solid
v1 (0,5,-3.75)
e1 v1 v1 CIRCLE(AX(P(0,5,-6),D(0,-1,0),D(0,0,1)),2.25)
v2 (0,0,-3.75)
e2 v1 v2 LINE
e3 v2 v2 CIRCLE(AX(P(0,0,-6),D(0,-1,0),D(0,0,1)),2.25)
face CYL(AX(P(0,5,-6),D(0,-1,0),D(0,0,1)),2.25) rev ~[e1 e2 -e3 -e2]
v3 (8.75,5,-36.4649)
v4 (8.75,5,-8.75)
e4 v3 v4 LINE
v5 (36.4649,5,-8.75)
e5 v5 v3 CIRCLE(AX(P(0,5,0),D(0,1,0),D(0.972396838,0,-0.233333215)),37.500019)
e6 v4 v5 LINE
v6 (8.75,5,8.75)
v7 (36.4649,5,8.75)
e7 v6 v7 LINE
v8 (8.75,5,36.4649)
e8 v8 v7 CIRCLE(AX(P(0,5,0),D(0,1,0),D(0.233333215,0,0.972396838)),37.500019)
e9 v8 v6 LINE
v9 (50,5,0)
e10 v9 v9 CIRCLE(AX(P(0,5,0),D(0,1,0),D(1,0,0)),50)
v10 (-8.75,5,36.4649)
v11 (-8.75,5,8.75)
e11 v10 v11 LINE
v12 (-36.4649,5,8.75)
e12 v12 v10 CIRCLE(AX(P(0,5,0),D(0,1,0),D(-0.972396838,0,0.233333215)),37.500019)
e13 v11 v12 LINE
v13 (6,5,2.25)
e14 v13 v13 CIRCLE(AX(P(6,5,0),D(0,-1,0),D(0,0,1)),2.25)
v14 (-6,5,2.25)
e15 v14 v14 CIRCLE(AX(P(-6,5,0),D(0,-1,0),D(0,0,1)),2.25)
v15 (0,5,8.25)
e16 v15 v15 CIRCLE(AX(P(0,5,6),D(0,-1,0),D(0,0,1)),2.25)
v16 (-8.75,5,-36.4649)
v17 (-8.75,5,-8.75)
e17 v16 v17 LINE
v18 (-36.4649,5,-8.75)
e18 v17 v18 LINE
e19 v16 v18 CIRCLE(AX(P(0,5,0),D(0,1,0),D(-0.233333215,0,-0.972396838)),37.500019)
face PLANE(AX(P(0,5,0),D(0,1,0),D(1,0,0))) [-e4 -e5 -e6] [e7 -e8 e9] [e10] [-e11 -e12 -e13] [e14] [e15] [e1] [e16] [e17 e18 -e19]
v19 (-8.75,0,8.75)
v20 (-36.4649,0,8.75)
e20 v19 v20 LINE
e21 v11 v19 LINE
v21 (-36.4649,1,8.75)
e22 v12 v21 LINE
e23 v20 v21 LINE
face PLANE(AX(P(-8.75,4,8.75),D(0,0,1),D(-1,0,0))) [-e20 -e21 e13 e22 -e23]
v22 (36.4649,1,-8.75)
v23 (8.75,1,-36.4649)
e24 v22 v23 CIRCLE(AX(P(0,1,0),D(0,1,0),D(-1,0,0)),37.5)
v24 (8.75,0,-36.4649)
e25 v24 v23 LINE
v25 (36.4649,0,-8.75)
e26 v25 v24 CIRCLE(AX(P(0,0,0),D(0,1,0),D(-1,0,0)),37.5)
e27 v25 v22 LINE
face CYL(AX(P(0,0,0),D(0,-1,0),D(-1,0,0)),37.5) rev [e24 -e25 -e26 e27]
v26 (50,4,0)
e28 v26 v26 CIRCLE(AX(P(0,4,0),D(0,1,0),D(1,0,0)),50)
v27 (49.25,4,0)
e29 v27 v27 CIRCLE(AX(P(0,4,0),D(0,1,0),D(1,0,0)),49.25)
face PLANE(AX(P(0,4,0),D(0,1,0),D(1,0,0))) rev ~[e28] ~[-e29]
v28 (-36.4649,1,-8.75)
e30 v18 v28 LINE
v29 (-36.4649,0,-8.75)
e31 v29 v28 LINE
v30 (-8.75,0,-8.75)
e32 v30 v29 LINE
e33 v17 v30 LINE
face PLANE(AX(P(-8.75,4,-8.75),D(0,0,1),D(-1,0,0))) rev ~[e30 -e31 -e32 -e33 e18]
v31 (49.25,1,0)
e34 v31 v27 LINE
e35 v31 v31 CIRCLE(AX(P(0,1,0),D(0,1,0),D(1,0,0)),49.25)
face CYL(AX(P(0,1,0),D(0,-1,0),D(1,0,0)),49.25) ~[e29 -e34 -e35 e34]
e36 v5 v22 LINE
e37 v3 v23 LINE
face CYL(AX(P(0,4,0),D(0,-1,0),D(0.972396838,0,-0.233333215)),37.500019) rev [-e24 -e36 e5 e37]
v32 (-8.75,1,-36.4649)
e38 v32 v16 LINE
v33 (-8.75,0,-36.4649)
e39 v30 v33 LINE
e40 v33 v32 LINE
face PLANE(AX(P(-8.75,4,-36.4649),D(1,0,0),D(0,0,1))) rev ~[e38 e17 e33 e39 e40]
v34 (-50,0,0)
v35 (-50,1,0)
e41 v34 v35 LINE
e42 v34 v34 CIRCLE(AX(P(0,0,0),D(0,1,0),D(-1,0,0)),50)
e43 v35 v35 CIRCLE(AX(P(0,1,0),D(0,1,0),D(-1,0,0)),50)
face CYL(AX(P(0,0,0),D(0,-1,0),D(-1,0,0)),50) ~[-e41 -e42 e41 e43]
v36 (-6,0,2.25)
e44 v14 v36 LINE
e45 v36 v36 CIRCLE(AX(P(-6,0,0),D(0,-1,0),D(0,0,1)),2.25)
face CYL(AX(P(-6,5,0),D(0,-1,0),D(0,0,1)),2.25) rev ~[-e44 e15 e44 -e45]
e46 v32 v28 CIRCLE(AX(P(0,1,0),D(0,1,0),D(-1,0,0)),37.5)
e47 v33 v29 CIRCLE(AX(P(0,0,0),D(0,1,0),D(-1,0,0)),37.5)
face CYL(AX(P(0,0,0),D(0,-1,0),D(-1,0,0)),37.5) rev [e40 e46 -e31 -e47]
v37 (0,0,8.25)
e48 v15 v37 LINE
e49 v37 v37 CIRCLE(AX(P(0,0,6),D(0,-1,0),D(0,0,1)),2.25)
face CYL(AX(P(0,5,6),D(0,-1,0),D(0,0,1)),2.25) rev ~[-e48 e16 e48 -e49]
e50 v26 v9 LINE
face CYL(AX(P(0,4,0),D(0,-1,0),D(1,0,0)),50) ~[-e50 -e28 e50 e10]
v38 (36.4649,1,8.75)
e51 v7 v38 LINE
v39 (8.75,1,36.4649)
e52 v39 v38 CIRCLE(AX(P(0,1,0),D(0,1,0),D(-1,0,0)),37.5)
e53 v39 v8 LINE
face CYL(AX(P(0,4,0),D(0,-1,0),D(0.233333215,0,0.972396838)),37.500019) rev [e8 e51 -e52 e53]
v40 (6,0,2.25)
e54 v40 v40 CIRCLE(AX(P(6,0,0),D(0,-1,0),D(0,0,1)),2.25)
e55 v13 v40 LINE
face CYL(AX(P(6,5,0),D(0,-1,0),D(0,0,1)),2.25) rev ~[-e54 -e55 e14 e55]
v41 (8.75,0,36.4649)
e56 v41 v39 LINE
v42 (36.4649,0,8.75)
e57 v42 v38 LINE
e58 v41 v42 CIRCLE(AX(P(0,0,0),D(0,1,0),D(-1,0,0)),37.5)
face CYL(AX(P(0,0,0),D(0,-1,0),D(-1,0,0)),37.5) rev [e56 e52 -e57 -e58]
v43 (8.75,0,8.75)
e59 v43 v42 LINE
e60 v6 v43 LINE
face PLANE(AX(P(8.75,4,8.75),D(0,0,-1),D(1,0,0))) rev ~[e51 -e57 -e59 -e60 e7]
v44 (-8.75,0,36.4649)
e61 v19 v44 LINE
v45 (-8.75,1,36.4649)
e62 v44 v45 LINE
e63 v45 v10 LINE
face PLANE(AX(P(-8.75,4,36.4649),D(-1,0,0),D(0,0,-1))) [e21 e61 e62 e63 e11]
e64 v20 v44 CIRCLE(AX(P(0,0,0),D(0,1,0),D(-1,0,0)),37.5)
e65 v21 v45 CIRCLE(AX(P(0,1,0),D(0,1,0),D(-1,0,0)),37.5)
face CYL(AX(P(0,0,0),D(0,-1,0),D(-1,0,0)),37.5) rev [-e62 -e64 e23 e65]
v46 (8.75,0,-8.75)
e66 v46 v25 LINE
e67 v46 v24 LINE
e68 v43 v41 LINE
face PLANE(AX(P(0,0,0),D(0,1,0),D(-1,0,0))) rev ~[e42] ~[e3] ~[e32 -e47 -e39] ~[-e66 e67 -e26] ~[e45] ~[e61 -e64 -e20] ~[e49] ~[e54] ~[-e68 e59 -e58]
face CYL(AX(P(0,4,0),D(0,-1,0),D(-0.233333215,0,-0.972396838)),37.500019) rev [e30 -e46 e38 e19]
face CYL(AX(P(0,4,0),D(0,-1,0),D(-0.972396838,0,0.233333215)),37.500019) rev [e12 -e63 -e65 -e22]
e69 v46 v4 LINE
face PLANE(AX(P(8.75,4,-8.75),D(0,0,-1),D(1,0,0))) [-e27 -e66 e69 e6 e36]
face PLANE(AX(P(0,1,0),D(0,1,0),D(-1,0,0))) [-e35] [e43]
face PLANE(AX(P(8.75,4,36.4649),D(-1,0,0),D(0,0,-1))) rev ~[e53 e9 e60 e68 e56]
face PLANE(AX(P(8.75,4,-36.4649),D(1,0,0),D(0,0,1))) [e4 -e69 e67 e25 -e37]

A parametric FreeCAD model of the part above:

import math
import FreeCAD as App
import Part
import Sketcher

V = App.Vector
Q = App.Units.Quantity

doc = App.newDocument("Part")
body = doc.addObject("PartDesign::Body", "Body")

# Sketch on XZ plane
sketch1 = body.newObject("Sketcher::SketchObject", "Sketch")
sketch1.AttachmentSupport = (doc.getObject("XZ_Plane"), [""])
sketch1.MapMode = "FlatFace"
sketch1.addGeometry(Part.Circle(V(0, 0, 0), V(0, 0, 1), 50), False)
sketch1.addGeometry(Part.ArcOfCircle(Part.Circle(V(0, 0, 0), V(0, 0, 1), 38), math.radians(103), math.radians(167)), False)
sketch1.addGeometry(Part.LineSegment(V(-36, 9, 0), V(-9, 9, 0)), False)
sketch1.addGeometry(Part.LineSegment(V(-9, 9, 0), V(-9, 36, 0)), False)
sketch1.addGeometry(Part.ArcOfCircle(Part.Circle(V(0, 0, 0), V(0, 0, 1), 38), math.radians(13), math.radians(77)), False)
sketch1.addGeometry(Part.LineSegment(V(9, 36, 0), V(9, 9, 0)), False)
sketch1.addGeometry(Part.LineSegment(V(9, 9, 0), V(36, 9, 0)), False)
sketch1.addGeometry(Part.ArcOfCircle(Part.Circle(V(0, 0, 0), V(0, 0, 1), 38), math.radians(-77), math.radians(-13)), False)
sketch1.addGeometry(Part.LineSegment(V(36, -9, 0), V(9, -9, 0)), False)
sketch1.addGeometry(Part.LineSegment(V(9, -9, 0), V(9, -36, 0)), False)
sketch1.addGeometry(Part.ArcOfCircle(Part.Circle(V(0, 0, 0), V(0, 0, 1), 38), math.radians(-167), math.radians(-103)), False)
sketch1.addGeometry(Part.LineSegment(V(-9, -36, 0), V(-9, -9, 0)), False)
sketch1.addGeometry(Part.LineSegment(V(-9, -9, 0), V(-36, -9, 0)), False)
sketch1.addConstraint(Sketcher.Constraint("Coincident", 1, 2, 2, 1))
sketch1.addConstraint(Sketcher.Constraint("Coincident", 2, 2, 3, 1))
sketch1.addConstraint(Sketcher.Constraint("Coincident", 3, 2, 1, 1))
sketch1.addConstraint(Sketcher.Constraint("Coincident", 4, 2, 5, 1))
sketch1.addConstraint(Sketcher.Constraint("Coincident", 5, 2, 6, 1))
sketch1.addConstraint(Sketcher.Constraint("Coincident", 6, 2, 4, 1))
sketch1.addConstraint(Sketcher.Constraint("Coincident", 7, 2, 8, 1))
sketch1.addConstraint(Sketcher.Constraint("Coincident", 8, 2, 9, 1))
sketch1.addConstraint(Sketcher.Constraint("Coincident", 9, 2, 7, 1))
sketch1.addConstraint(Sketcher.Constraint("Coincident", 10, 2, 11, 1))
sketch1.addConstraint(Sketcher.Constraint("Coincident", 11, 2, 12, 1))
sketch1.addConstraint(Sketcher.Constraint("Coincident", 12, 2, 10, 1))
sketch1.addConstraint(Sketcher.Constraint("Horizontal", 2))
sketch1.addConstraint(Sketcher.Constraint("Vertical", 3))
sketch1.addConstraint(Sketcher.Constraint("Vertical", 5))
sketch1.addConstraint(Sketcher.Constraint("Horizontal", 6))
sketch1.addConstraint(Sketcher.Constraint("Horizontal", 8))
sketch1.addConstraint(Sketcher.Constraint("Vertical", 9))
sketch1.addConstraint(Sketcher.Constraint("Vertical", 11))
sketch1.addConstraint(Sketcher.Constraint("Horizontal", 12))
sketch1.addConstraint(Sketcher.Constraint("Coincident", 0, 3, -1, 1))
sketch1.addConstraint(Sketcher.Constraint("Coincident", 1, 3, -1, 1))
sketch1.addConstraint(Sketcher.Constraint("Coincident", 4, 3, -1, 1))
sketch1.addConstraint(Sketcher.Constraint("Coincident", 7, 3, -1, 1))
sketch1.addConstraint(Sketcher.Constraint("Coincident", 10, 3, -1, 1))
sketch1.addConstraint(Sketcher.Constraint("Equal", 1, 4))
sketch1.addConstraint(Sketcher.Constraint("Equal", 4, 7))
sketch1.addConstraint(Sketcher.Constraint("Equal", 7, 10))
sketch1.addConstraint(Sketcher.Constraint("Symmetric", 2, 2, 8, 2, -1, 1))
sketch1.addConstraint(Sketcher.Constraint("Symmetric", 5, 2, 11, 2, -1, 1))
sketch1.addConstraint(Sketcher.Constraint("Symmetric", 2, 2, 5, 2, -2))
sketch1.addConstraint(Sketcher.Constraint("Equal", 12, 3))
sketch1.addConstraint(Sketcher.Constraint("Diameter", 0, Q("100 mm")))
sketch1.addConstraint(Sketcher.Constraint("Radius", 1, Q("37.5 mm")))
sketch1.addConstraint(Sketcher.Constraint("DistanceX", 3, 2, 4, 2, Q("17.5 mm")))
pad1 = body.newObject("PartDesign::Pad", "Pad")
pad1.Profile = sketch1
pad1.Length = 1
pad1.Reversed = True

# Sketch on XZ plane
sketch2 = body.newObject("Sketcher::SketchObject", "Sketch001")
sketch2.AttachmentSupport = (doc.getObject("XZ_Plane"), [""])
sketch2.MapMode = "FlatFace"
sketch2.AttachmentOffset = App.Placement(V(0, 0, -1), App.Rotation())
sketch2.addGeometry(Part.Circle(V(0, 0, 0), V(0, 0, 1), 49), False)
sketch2.addGeometry(Part.ArcOfCircle(Part.Circle(V(0, 0, 0), V(0, 0, 1), 38), math.radians(103), math.radians(167)), False)
sketch2.addGeometry(Part.LineSegment(V(-36, 9, 0), V(-9, 9, 0)), False)
sketch2.addGeometry(Part.LineSegment(V(-9, 9, 0), V(-9, 36, 0)), False)
sketch2.addGeometry(Part.LineSegment(V(9, 9, 0), V(36, 9, 0)), False)
sketch2.addGeometry(Part.ArcOfCircle(Part.Circle(V(0, 0, 0), V(0, 0, 1), 38), math.radians(13), math.radians(77)), False)
sketch2.addGeometry(Part.LineSegment(V(9, 36, 0), V(9, 9, 0)), False)
sketch2.addGeometry(Part.LineSegment(V(-9, -9, 0), V(-36, -9, 0)), False)
sketch2.addGeometry(Part.ArcOfCircle(Part.Circle(V(0, 0, 0), V(0, 0, 1), 38), math.radians(-167), math.radians(-103)), False)
sketch2.addGeometry(Part.LineSegment(V(-9, -36, 0), V(-9, -9, 0)), False)
sketch2.addGeometry(Part.ArcOfCircle(Part.Circle(V(0, 0, 0), V(0, 0, 1), 38), math.radians(-77), math.radians(-13)), False)
sketch2.addGeometry(Part.LineSegment(V(36, -9, 0), V(9, -9, 0)), False)
sketch2.addGeometry(Part.LineSegment(V(9, -9, 0), V(9, -36, 0)), False)
sketch2.addConstraint(Sketcher.Constraint("Coincident", 1, 2, 2, 1))
sketch2.addConstraint(Sketcher.Constraint("Coincident", 2, 2, 3, 1))
sketch2.addConstraint(Sketcher.Constraint("Coincident", 3, 2, 1, 1))
sketch2.addConstraint(Sketcher.Constraint("Coincident", 4, 2, 5, 1))
sketch2.addConstraint(Sketcher.Constraint("Coincident", 5, 2, 6, 1))
sketch2.addConstraint(Sketcher.Constraint("Coincident", 6, 2, 4, 1))
sketch2.addConstraint(Sketcher.Constraint("Coincident", 7, 2, 8, 1))
sketch2.addConstraint(Sketcher.Constraint("Coincident", 8, 2, 9, 1))
sketch2.addConstraint(Sketcher.Constraint("Coincident", 9, 2, 7, 1))
sketch2.addConstraint(Sketcher.Constraint("Coincident", 10, 2, 11, 1))
sketch2.addConstraint(Sketcher.Constraint("Coincident", 11, 2, 12, 1))
sketch2.addConstraint(Sketcher.Constraint("Coincident", 12, 2, 10, 1))
sketch2.addConstraint(Sketcher.Constraint("Horizontal", 2))
sketch2.addConstraint(Sketcher.Constraint("Vertical", 3))
sketch2.addConstraint(Sketcher.Constraint("Horizontal", 4))
sketch2.addConstraint(Sketcher.Constraint("Vertical", 6))
sketch2.addConstraint(Sketcher.Constraint("Horizontal", 7))
sketch2.addConstraint(Sketcher.Constraint("Vertical", 9))
sketch2.addConstraint(Sketcher.Constraint("Horizontal", 11))
sketch2.addConstraint(Sketcher.Constraint("Vertical", 12))
sketch2.addConstraint(Sketcher.Constraint("Coincident", 0, 3, -1, 1))
sketch2.addConstraint(Sketcher.Constraint("Coincident", 1, 3, -1, 1))
sketch2.addConstraint(Sketcher.Constraint("Coincident", 5, 3, -1, 1))
sketch2.addConstraint(Sketcher.Constraint("Coincident", 8, 3, -1, 1))
sketch2.addConstraint(Sketcher.Constraint("Coincident", 10, 3, -1, 1))
sketch2.addConstraint(Sketcher.Constraint("Equal", 1, 5))
sketch2.addConstraint(Sketcher.Constraint("Equal", 5, 8))
sketch2.addConstraint(Sketcher.Constraint("Equal", 8, 10))
sketch2.addConstraint(Sketcher.Constraint("Symmetric", 6, 2, 9, 2, -1, 1))
sketch2.addConstraint(Sketcher.Constraint("Symmetric", 2, 2, 11, 2, -1, 1))
sketch2.addConstraint(Sketcher.Constraint("Symmetric", 2, 2, 6, 2, -2))
sketch2.addConstraint(Sketcher.Constraint("Equal", 11, 3))
sketch2.addConstraint(Sketcher.Constraint("Diameter", 0, Q("98.5 mm")))
sketch2.addConstraint(Sketcher.Constraint("Radius", 1, Q("37.5 mm")))
sketch2.addConstraint(Sketcher.Constraint("DistanceX", 3, 2, 5, 2, Q("17.5 mm")))
pad2 = body.newObject("PartDesign::Pad", "Pad001")
pad2.Profile = sketch2
pad2.Length = 3
pad2.Reversed = True

# Sketch on XZ plane
sketch3 = body.newObject("Sketcher::SketchObject", "Sketch002")
sketch3.AttachmentSupport = (doc.getObject("XZ_Plane"), [""])
sketch3.MapMode = "FlatFace"
sketch3.AttachmentOffset = App.Placement(V(0, 0, -4), App.Rotation())
sketch3.addGeometry(Part.Circle(V(0, 0, 0), V(0, 0, 1), 50), False)
sketch3.addGeometry(Part.LineSegment(V(-9, 9, 0), V(-9, 36, 0)), False)
sketch3.addGeometry(Part.ArcOfCircle(Part.Circle(V(0, 0, 0), V(0, 0, 1), 38), math.radians(103), math.radians(167)), False)
sketch3.addGeometry(Part.LineSegment(V(-36, 9, 0), V(-9, 9, 0)), False)
sketch3.addGeometry(Part.ArcOfCircle(Part.Circle(V(0, 0, 0), V(0, 0, 1), 38), math.radians(13), math.radians(77)), False)
sketch3.addGeometry(Part.LineSegment(V(9, 36, 0), V(9, 9, 0)), False)
sketch3.addGeometry(Part.LineSegment(V(9, 9, 0), V(36, 9, 0)), False)
sketch3.addGeometry(Part.ArcOfCircle(Part.Circle(V(0, 0, 0), V(0, 0, 1), 38), math.radians(-167), math.radians(-103)), False)
sketch3.addGeometry(Part.LineSegment(V(-9, -36, 0), V(-9, -9, 0)), False)
sketch3.addGeometry(Part.LineSegment(V(-9, -9, 0), V(-36, -9, 0)), False)
sketch3.addGeometry(Part.LineSegment(V(36, -9, 0), V(9, -9, 0)), False)
sketch3.addGeometry(Part.LineSegment(V(9, -9, 0), V(9, -36, 0)), False)
sketch3.addGeometry(Part.ArcOfCircle(Part.Circle(V(0, 0, 0), V(0, 0, 1), 38), math.radians(-77), math.radians(-13)), False)
sketch3.addConstraint(Sketcher.Constraint("Coincident", 1, 2, 2, 1))
sketch3.addConstraint(Sketcher.Constraint("Coincident", 2, 2, 3, 1))
sketch3.addConstraint(Sketcher.Constraint("Coincident", 3, 2, 1, 1))
sketch3.addConstraint(Sketcher.Constraint("Coincident", 4, 2, 5, 1))
sketch3.addConstraint(Sketcher.Constraint("Coincident", 5, 2, 6, 1))
sketch3.addConstraint(Sketcher.Constraint("Coincident", 6, 2, 4, 1))
sketch3.addConstraint(Sketcher.Constraint("Coincident", 7, 2, 8, 1))
sketch3.addConstraint(Sketcher.Constraint("Coincident", 8, 2, 9, 1))
sketch3.addConstraint(Sketcher.Constraint("Coincident", 9, 2, 7, 1))
sketch3.addConstraint(Sketcher.Constraint("Coincident", 10, 2, 11, 1))
sketch3.addConstraint(Sketcher.Constraint("Coincident", 11, 2, 12, 1))
sketch3.addConstraint(Sketcher.Constraint("Coincident", 12, 2, 10, 1))
sketch3.addConstraint(Sketcher.Constraint("Vertical", 1))
sketch3.addConstraint(Sketcher.Constraint("Horizontal", 3))
sketch3.addConstraint(Sketcher.Constraint("Vertical", 5))
sketch3.addConstraint(Sketcher.Constraint("Horizontal", 6))
sketch3.addConstraint(Sketcher.Constraint("Vertical", 8))
sketch3.addConstraint(Sketcher.Constraint("Horizontal", 9))
sketch3.addConstraint(Sketcher.Constraint("Horizontal", 10))
sketch3.addConstraint(Sketcher.Constraint("Vertical", 11))
sketch3.addConstraint(Sketcher.Constraint("Coincident", 0, 3, -1, 1))
sketch3.addConstraint(Sketcher.Constraint("Coincident", 2, 3, -1, 1))
sketch3.addConstraint(Sketcher.Constraint("Coincident", 4, 3, -1, 1))
sketch3.addConstraint(Sketcher.Constraint("Coincident", 7, 3, -1, 1))
sketch3.addConstraint(Sketcher.Constraint("Coincident", 12, 3, -1, 1))
sketch3.addConstraint(Sketcher.Constraint("Equal", 2, 4))
sketch3.addConstraint(Sketcher.Constraint("Equal", 4, 7))
sketch3.addConstraint(Sketcher.Constraint("Equal", 7, 12))
sketch3.addConstraint(Sketcher.Constraint("Symmetric", 5, 2, 8, 2, -1, 1))
sketch3.addConstraint(Sketcher.Constraint("Symmetric", 3, 2, 10, 2, -1, 1))
sketch3.addConstraint(Sketcher.Constraint("Symmetric", 3, 2, 5, 2, -2))
sketch3.addConstraint(Sketcher.Constraint("Equal", 10, 1))
sketch3.addConstraint(Sketcher.Constraint("Diameter", 0, Q("100 mm")))
sketch3.addConstraint(Sketcher.Constraint("Radius", 2, Q("37.5 mm")))
sketch3.addConstraint(Sketcher.Constraint("DistanceX", 1, 2, 4, 2, Q("17.5 mm")))
pad3 = body.newObject("PartDesign::Pad", "Pad002")
pad3.Profile = sketch3
pad3.Length = 1
pad3.Reversed = True

# Sketch on XZ plane
sketch4 = body.newObject("Sketcher::SketchObject", "Sketch003")
sketch4.AttachmentSupport = (doc.getObject("XZ_Plane"), [""])
sketch4.MapMode = "FlatFace"
sketch4.AttachmentOffset = App.Placement(V(0, 0, -5), App.Rotation())
sketch4.addGeometry(Part.Circle(V(0, 6, 0), V(0, 0, 1), 2.2), False)
sketch4.addGeometry(Part.Circle(V(-6, 0, 0), V(0, 0, 1), 2.2), False)
sketch4.addGeometry(Part.Circle(V(0, -6, 0), V(0, 0, 1), 2.2), False)
sketch4.addGeometry(Part.Circle(V(6, 0, 0), V(0, 0, 1), 2.2), False)
sketch4.addConstraint(Sketcher.Constraint("Equal", 0, 1))
sketch4.addConstraint(Sketcher.Constraint("Equal", 1, 2))
sketch4.addConstraint(Sketcher.Constraint("Equal", 2, 3))
sketch4.addConstraint(Sketcher.Constraint("Symmetric", 0, 3, 2, 3, -1, 1))
sketch4.addConstraint(Sketcher.Constraint("Symmetric", 1, 3, 3, 3, -1, 1))
sketch4.addConstraint(Sketcher.Constraint("PointOnObject", 0, 3, -2))
sketch4.addConstraint(Sketcher.Constraint("PointOnObject", 1, 3, -1))
sketch4.addConstraint(Sketcher.Constraint("Diameter", 0, Q("4.5 mm")))
sketch4.addConstraint(Sketcher.Constraint("DistanceY", -1, 1, 0, 3, Q("6 mm")))
sketch4.addConstraint(Sketcher.Constraint("DistanceX", 1, 3, -1, 1, Q("6 mm")))
doc.recompute()
hole = body.newObject("PartDesign::Hole", "Hole")
hole.Profile = sketch4
hole.ThreadType = "None"
hole.Diameter = 4.5
hole.DepthType = "ThroughAll"
hole.Reversed = True

doc.recompute()
